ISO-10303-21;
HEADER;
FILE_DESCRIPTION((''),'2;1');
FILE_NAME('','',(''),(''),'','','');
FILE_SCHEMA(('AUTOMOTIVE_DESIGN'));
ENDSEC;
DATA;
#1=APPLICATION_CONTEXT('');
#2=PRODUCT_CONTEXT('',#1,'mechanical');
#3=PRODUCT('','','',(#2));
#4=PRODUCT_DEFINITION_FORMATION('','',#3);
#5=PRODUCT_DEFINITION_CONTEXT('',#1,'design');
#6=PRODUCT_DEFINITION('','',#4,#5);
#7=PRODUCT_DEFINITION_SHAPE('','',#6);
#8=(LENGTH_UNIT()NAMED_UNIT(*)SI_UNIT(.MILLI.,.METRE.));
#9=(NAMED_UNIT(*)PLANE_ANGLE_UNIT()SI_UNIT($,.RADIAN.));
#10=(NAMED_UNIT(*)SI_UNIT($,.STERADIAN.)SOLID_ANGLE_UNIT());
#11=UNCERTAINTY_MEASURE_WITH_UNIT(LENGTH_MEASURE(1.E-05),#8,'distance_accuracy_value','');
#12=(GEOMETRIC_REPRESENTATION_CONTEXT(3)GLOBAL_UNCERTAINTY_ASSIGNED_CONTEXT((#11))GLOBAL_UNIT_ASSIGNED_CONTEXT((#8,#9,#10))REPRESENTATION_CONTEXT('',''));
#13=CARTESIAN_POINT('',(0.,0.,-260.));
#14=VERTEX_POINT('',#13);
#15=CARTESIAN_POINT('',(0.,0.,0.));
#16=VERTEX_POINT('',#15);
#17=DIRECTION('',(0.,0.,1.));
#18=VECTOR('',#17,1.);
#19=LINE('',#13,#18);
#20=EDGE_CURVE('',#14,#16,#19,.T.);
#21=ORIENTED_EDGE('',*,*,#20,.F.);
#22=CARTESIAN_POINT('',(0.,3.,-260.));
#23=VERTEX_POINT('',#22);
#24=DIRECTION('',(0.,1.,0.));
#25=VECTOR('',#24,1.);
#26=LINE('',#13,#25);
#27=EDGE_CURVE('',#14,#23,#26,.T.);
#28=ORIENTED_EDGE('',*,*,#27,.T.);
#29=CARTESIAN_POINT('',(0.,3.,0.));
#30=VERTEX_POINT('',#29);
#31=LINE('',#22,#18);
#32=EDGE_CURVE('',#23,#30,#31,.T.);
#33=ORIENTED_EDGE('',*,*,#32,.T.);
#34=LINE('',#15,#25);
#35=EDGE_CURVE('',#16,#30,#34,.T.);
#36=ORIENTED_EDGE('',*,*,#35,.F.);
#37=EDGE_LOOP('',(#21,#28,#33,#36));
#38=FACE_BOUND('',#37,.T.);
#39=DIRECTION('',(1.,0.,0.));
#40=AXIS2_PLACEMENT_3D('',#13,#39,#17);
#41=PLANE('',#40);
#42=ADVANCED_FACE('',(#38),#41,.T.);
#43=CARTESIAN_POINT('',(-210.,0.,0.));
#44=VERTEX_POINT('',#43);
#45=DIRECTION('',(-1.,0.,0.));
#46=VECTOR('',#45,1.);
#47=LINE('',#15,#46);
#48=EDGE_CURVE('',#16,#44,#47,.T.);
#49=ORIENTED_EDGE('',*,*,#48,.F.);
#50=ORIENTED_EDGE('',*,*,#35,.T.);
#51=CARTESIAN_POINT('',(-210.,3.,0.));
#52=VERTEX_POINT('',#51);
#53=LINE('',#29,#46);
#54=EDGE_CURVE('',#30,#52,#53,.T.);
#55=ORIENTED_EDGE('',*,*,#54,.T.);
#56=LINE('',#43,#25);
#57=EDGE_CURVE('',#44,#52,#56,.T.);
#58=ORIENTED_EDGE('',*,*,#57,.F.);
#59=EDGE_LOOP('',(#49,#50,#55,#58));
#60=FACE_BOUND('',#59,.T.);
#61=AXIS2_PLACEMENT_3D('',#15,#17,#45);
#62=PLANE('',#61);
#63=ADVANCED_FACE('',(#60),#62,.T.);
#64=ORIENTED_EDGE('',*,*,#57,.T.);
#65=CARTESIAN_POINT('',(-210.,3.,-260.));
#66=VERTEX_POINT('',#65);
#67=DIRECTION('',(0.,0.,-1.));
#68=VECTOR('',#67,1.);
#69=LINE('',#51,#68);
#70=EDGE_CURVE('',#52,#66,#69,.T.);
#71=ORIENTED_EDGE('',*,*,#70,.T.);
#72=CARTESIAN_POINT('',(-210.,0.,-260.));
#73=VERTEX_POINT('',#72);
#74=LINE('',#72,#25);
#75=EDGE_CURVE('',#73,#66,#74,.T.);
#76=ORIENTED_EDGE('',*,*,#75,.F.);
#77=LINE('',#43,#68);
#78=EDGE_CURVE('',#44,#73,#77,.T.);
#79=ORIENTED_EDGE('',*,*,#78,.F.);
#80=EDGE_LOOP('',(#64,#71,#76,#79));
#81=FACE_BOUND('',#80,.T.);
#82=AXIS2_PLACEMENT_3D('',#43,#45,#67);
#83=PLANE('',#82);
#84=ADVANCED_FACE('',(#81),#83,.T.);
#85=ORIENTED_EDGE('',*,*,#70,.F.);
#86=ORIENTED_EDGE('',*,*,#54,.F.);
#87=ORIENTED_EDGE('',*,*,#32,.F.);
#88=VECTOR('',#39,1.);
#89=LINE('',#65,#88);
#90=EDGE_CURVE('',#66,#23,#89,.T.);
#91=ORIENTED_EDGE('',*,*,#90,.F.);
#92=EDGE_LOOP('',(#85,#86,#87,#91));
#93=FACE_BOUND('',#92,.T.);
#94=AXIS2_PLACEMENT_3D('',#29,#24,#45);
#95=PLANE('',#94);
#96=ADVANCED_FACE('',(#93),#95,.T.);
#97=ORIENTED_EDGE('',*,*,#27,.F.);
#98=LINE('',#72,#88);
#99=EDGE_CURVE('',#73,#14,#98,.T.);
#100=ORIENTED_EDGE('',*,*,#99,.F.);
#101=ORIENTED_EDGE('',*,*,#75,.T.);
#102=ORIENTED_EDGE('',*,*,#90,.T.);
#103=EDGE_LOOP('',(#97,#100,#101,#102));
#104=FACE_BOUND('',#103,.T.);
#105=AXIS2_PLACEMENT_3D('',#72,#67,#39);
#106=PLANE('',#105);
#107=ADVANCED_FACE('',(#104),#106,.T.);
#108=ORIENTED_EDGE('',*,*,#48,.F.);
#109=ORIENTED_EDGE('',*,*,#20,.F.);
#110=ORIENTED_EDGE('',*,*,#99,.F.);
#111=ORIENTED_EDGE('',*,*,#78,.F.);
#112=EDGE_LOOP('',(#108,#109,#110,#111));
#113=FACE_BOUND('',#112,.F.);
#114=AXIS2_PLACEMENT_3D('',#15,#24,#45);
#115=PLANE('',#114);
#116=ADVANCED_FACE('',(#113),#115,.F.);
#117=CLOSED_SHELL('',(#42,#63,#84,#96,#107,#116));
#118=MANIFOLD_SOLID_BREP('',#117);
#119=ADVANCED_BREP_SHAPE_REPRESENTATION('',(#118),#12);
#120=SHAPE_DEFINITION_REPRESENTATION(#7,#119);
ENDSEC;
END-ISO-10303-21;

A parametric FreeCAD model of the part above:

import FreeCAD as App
import Part
import Sketcher

doc = App.newDocument("Part")
body = doc.addObject("PartDesign::Body", "Body")

# Sketch on XZ plane
sketch1 = body.newObject("Sketcher::SketchObject", "Sketch")
sketch1.AttachmentSupport = (doc.getObject("XZ_Plane"), [""])
sketch1.MapMode = "FlatFace"
sketch1.addGeometry([
    Part.LineSegment(App.Vector(-210, 0, 0), App.Vector(0, 0, 0)),
    Part.LineSegment(App.Vector(0, 0, 0), App.Vector(0, -260, 0)),
    Part.LineSegment(App.Vector(0, -260, 0), App.Vector(-210, -260, 0)),
    Part.LineSegment(App.Vector(-210, -260, 0), App.Vector(-210, 0, 0)),
], False)
sketch1.addConstraint([
    Sketcher.Constraint("Coincident", 0, 2, 1, 1),
    Sketcher.Constraint("Coincident", 1, 2, 2, 1),
    Sketcher.Constraint("Coincident", 2, 2, 3, 1),
    Sketcher.Constraint("Coincident", 3, 2, 0, 1),
    Sketcher.Constraint("Horizontal", 0),
    Sketcher.Constraint("Vertical", 1),
    Sketcher.Constraint("Horizontal", 2),
    Sketcher.Constraint("Vertical", 3),
    Sketcher.Constraint("Coincident", 0, 2, -1, 1),
    Sketcher.Constraint("DistanceX", 0, 1, 0, 2, 210.0),
    Sketcher.Constraint("DistanceY", 1, 2, 1, 1, 260.0),
])
pad1 = body.newObject("PartDesign::Pad", "Pad")
pad1.Profile = sketch1
pad1.Length = 3
pad1.Reversed = True

doc.recompute()
